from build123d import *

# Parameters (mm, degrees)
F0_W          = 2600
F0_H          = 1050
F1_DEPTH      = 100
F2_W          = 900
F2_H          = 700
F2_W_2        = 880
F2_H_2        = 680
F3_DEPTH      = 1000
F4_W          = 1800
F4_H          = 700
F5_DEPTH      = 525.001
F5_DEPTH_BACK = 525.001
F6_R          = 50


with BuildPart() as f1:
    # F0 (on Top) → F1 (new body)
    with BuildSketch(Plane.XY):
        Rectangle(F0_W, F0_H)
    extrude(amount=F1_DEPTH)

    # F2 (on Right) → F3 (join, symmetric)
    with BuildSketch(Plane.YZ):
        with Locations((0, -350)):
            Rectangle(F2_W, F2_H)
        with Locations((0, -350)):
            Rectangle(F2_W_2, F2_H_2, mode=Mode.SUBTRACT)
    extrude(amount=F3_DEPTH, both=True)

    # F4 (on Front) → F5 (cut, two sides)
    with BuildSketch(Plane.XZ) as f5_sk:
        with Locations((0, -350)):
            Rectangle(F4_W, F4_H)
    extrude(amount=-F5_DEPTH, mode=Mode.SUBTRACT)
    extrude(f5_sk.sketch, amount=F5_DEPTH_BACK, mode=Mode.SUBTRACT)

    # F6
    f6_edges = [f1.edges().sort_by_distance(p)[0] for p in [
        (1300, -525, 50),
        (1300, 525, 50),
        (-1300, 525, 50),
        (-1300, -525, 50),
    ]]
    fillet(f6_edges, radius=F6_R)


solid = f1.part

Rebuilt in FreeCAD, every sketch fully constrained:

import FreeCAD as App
import Part
import Sketcher
from FreeCAD import Vector


def edges_at(feature, points):
    """Names of the edges that pass closest to the given points."""
    edges = feature.Shape.Edges
    near = lambda p: min(range(len(edges)), key=lambda i: edges[i].distToShape(Part.Vertex(*p))[0])
    return sorted({f"Edge{near(p) + 1}" for p in points})


def add_polygon(sketch, points):
    """Adds a closed chain of lines whose ends are joined by coincident constraints."""
    first, n = sketch.GeometryCount, len(points)
    for a, b in zip(points, points[1:] + points[:1]):
        sketch.addGeometry(Part.LineSegment(App.Vector(*a, 0), App.Vector(*b, 0)), False)
    for i in range(n):
        sketch.addConstraint(Sketcher.Constraint("Coincident", first + i, 2, first + (i + 1) % n, 1))

doc = App.newDocument("Part")
params = doc.addObject("Spreadsheet::Sheet", "Params")
for row, (alias, value) in enumerate([
    ("sketch1_width", "2600 mm"),
    ("sketch1_height", "1050 mm"),
    ("pad1_length", "100 mm"),
    ("sketch2_width", "900 mm"),
    ("sketch2_width2", "880 mm"),
    ("sketch2_height", "700 mm"),
    ("sketch2_height2", "680 mm"),
    ("pad2_length", "2000 mm"),
    ("sketch3_width", "1800 mm"),
    ("sketch3_height", "700 mm"),
    ("fillet_radius", "50 mm"),
], start=1):
    params.set(f"A{row}", alias)
    params.set(f"B{row}", "=" + value)
    params.setAlias(f"B{row}", alias)

body = doc.addObject("PartDesign::Body", "Body")

# Sketch on XY plane
sketch1 = body.newObject("Sketcher::SketchObject", "Sketch")
sketch1.AttachmentSupport = (doc.getObject("XY_Plane"), [""])
sketch1.MapMode = "FlatFace"
add_polygon(sketch1, [(-1300, 525), (-1300, -525), (1300, -525), (1300, 525)])  # lines 0-3
sketch1.addConstraint([
    Sketcher.Constraint("Vertical", 0),
    Sketcher.Constraint("Horizontal", 1),
    Sketcher.Constraint("Vertical", 2),
    Sketcher.Constraint("Horizontal", 3),
    Sketcher.Constraint("Symmetric", 0, 2, 2, 2, -1, 1),
    Sketcher.Constraint("DistanceX", 1, 1, 1, 2, 2600.0),
    Sketcher.Constraint("DistanceY", 0, 2, 0, 1, 1050.0),
])
sketch1.setExpression("Constraints[9]", "Params.sketch1_width")
sketch1.setExpression("Constraints[10]", "Params.sketch1_height")
pad1 = body.newObject("PartDesign::Pad", "Pad")
pad1.Profile = sketch1
pad1.setExpression("Length", "Params.pad1_length")

# Sketch on YZ plane
sketch2 = body.newObject("Sketcher::SketchObject", "Sketch001")
sketch2.AttachmentSupport = (doc.getObject("YZ_Plane"), [""])
sketch2.MapMode = "FlatFace"
add_polygon(sketch2, [(-450, 0), (-450, -700), (450, -700), (450, 0)])  # lines 0-3
add_polygon(sketch2, [(440, -690), (-440, -690), (-440, -10), (440, -10)])  # lines 4-7
sketch2.addConstraint([
    Sketcher.Constraint("Vertical", 0),
    Sketcher.Constraint("Horizontal", 1),
    Sketcher.Constraint("Vertical", 2),
    Sketcher.Constraint("Horizontal", 3),
    Sketcher.Constraint("Horizontal", 4),
    Sketcher.Constraint("Vertical", 5),
    Sketcher.Constraint("Horizontal", 6),
    Sketcher.Constraint("Vertical", 7),
    Sketcher.Constraint("Symmetric", 2, 2, 3, 2, -1, 1),
    Sketcher.Constraint("DistanceX", 1, 1, 1, 2, 900.0),
    Sketcher.Constraint("DistanceX", 4, 2, 4, 1, 880.0),
    Sketcher.Constraint("DistanceY", 0, 2, 0, 1, 700.0),
    Sketcher.Constraint("DistanceY", 5, 1, 5, 2, 680.0),
    Sketcher.Constraint("DistanceX", 4, 2, -1, 1, 440.0),
    Sketcher.Constraint("DistanceY", 4, 2, -1, 1, 690.0),
])
sketch2.setExpression("Constraints[17]", "Params.sketch2_width")
sketch2.setExpression("Constraints[18]", "Params.sketch2_width2")
sketch2.setExpression("Constraints[19]", "Params.sketch2_height")
sketch2.setExpression("Constraints[20]", "Params.sketch2_height2")
pad2 = body.newObject("PartDesign::Pad", "Pad001")
pad2.Profile = sketch2
pad2.setExpression("Length", "Params.pad2_length")
pad2.Midplane = True

# Sketch on XZ plane
sketch3 = body.newObject("Sketcher::SketchObject", "Sketch002")
sketch3.AttachmentSupport = (doc.getObject("XZ_Plane"), [""])
sketch3.MapMode = "FlatFace"
add_polygon(sketch3, [(-900, 0), (-900, -700), (900, -700), (900, 0)])  # lines 0-3
sketch3.addConstraint([
    Sketcher.Constraint("Vertical", 0),
    Sketcher.Constraint("Horizontal", 1),
    Sketcher.Constraint("Vertical", 2),
    Sketcher.Constraint("Horizontal", 3),
    Sketcher.Constraint("Symmetric", 2, 2, 3, 2, -1, 1),
    Sketcher.Constraint("DistanceX", 1, 1, 1, 2, 1800.0),
    Sketcher.Constraint("DistanceY", 0, 2, 0, 1, 700.0),
])
sketch3.setExpression("Constraints[9]", "Params.sketch3_width")
sketch3.setExpression("Constraints[10]", "Params.sketch3_height")
pocket1 = body.newObject("PartDesign::Pocket", "Pocket")
pocket1.Profile = sketch3
pocket1.Type = "ThroughAll"
pocket1.Midplane = True
doc.recompute()

fillet = body.newObject("PartDesign::Fillet", "Fillet")
fillet.Base = (pocket1, edges_at(pocket1, [
    (1300, -525, 50),
    (1300, 525, 50),
    (-1300, 525, 50),
    (-1300, -525, 50),
]))
fillet.setExpression("Radius", "Params.fillet_radius")

doc.recompute()
